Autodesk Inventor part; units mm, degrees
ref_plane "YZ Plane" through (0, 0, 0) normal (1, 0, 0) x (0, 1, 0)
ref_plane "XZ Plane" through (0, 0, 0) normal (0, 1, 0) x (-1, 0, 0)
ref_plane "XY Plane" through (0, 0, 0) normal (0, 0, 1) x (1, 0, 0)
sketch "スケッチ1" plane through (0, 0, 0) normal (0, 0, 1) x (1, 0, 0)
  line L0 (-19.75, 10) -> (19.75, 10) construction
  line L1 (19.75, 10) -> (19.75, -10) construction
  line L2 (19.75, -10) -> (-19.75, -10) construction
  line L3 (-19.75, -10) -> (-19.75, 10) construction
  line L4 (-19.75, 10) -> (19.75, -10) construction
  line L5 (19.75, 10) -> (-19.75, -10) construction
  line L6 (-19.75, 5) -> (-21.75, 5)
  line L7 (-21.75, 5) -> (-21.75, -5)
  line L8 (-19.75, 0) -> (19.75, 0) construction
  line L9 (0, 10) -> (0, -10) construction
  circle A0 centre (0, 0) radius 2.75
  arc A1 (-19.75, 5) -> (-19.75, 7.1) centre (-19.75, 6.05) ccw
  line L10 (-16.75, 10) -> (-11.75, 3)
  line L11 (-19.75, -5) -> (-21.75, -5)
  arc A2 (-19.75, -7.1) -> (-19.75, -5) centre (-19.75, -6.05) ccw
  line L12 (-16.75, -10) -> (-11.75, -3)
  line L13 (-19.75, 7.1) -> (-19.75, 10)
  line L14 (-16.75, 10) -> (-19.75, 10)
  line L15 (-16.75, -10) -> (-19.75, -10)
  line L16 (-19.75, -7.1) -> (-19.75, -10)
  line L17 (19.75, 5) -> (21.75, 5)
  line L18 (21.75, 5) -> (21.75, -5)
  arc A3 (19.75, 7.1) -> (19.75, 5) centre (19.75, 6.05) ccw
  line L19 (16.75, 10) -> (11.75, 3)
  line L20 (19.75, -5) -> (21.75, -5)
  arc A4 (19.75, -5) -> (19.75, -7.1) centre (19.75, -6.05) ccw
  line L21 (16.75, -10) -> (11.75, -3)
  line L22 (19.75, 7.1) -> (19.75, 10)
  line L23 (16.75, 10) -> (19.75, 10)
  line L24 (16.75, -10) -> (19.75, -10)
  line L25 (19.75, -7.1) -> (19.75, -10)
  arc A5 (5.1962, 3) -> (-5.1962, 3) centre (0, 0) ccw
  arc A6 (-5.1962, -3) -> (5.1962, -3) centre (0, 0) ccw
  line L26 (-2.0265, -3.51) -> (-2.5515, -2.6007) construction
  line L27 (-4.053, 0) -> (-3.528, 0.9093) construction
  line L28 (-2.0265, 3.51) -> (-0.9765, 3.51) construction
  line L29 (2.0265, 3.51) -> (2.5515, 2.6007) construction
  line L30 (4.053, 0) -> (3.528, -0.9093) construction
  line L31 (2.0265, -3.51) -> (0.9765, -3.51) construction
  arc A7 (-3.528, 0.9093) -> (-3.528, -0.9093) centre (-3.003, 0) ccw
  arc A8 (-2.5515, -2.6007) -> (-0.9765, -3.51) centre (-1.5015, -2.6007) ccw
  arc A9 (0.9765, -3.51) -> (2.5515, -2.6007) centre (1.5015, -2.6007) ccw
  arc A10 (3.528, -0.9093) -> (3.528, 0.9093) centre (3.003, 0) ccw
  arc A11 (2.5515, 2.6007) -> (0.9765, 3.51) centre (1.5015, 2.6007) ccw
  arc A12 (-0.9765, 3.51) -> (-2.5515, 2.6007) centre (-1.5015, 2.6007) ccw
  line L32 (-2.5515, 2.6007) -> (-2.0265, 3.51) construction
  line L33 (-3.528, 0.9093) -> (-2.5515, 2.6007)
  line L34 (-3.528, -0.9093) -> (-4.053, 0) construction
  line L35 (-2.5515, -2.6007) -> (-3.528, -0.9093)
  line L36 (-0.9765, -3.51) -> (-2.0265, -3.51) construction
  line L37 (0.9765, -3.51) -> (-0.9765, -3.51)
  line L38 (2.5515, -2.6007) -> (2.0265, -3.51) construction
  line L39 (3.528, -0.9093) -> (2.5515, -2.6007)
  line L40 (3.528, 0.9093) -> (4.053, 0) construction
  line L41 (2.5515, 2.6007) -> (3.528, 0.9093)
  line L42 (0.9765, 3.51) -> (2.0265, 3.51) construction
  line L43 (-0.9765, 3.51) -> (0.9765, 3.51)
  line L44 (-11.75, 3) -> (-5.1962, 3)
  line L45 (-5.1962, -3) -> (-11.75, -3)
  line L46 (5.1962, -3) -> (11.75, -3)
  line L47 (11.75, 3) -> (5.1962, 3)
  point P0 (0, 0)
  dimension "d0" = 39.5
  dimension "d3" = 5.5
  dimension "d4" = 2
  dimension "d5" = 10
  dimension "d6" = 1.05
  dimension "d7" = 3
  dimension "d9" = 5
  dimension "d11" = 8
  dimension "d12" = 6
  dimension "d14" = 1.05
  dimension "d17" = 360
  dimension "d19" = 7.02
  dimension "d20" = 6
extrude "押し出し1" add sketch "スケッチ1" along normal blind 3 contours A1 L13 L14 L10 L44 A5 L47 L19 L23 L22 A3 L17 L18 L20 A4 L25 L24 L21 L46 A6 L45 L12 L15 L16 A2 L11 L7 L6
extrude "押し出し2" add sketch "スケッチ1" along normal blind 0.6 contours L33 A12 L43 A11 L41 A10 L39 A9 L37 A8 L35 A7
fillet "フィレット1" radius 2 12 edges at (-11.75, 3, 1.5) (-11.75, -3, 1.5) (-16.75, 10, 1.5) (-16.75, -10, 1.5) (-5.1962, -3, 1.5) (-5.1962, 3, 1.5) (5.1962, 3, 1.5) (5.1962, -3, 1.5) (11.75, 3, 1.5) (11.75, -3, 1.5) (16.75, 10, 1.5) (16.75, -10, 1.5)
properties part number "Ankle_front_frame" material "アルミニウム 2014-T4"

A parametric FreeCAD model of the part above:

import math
import FreeCAD as App
import Part
import Sketcher
Q = App.Units.Quantity


def edges_at(feature, points):
    """Names of the edges that pass closest to the given points."""
    edges = feature.Shape.Edges
    near = lambda p: min(range(len(edges)), key=lambda i: edges[i].distToShape(Part.Vertex(*p))[0])
    return sorted({f"Edge{near(p) + 1}" for p in points})

doc = App.newDocument("Part")
body = doc.addObject("PartDesign::Body", "Body")

sketch1 = body.newObject("Sketcher::SketchObject", "Sketch")
sketch1.AttachmentSupport = (doc.getObject("XY_Plane"), [""])
sketch1.MapMode = "FlatFace"
sketch1.addGeometry([
    Part.ArcOfCircle(Part.Circle(App.Vector(-19.8, 6, 0), App.Vector(0, 0, 1), 1), math.radians(-90), math.radians(90)),
    Part.LineSegment(App.Vector(-19.8, 5, 0), App.Vector(-21.8, 5, 0)),
    Part.LineSegment(App.Vector(-21.8, 5, 0), App.Vector(-21.8, -5, 0)),
    Part.LineSegment(App.Vector(-21.8, -5, 0), App.Vector(-19.8, -5, 0)),
    Part.ArcOfCircle(Part.Circle(App.Vector(-19.8, -6, 0), App.Vector(0, 0, 1), 1), math.radians(-90), math.radians(90)),
    Part.LineSegment(App.Vector(-19.8, -7.1, 0), App.Vector(-19.8, -10, 0)),
    Part.LineSegment(App.Vector(-19.8, -10, 0), App.Vector(-16.8, -10, 0)),
    Part.LineSegment(App.Vector(-16.8, -10, 0), App.Vector(-11.8, -3, 0)),
    Part.LineSegment(App.Vector(-11.8, -3, 0), App.Vector(-5.2, -3, 0)),
    Part.ArcOfCircle(Part.Circle(App.Vector(0, 0, 0), App.Vector(0, 0, 1), 6), math.radians(-150), math.radians(-30)),
    Part.LineSegment(App.Vector(5.2, -3, 0), App.Vector(11.8, -3, 0)),
    Part.LineSegment(App.Vector(11.8, -3, 0), App.Vector(16.8, -10, 0)),
    Part.LineSegment(App.Vector(16.8, -10, 0), App.Vector(19.8, -10, 0)),
    Part.LineSegment(App.Vector(19.8, -10, 0), App.Vector(19.8, -7.1, 0)),
    Part.ArcOfCircle(Part.Circle(App.Vector(19.8, -6, 0), App.Vector(0, 0, 1), 1), math.radians(90), math.radians(270)),
    Part.LineSegment(App.Vector(19.8, -5, 0), App.Vector(21.8, -5, 0)),
    Part.LineSegment(App.Vector(21.8, -5, 0), App.Vector(21.8, 5, 0)),
    Part.LineSegment(App.Vector(21.8, 5, 0), App.Vector(19.8, 5, 0)),
    Part.ArcOfCircle(Part.Circle(App.Vector(19.8, 6, 0), App.Vector(0, 0, 1), 1), math.radians(90), math.radians(270)),
    Part.LineSegment(App.Vector(19.8, 7.1, 0), App.Vector(19.8, 10, 0)),
    Part.LineSegment(App.Vector(19.8, 10, 0), App.Vector(16.8, 10, 0)),
    Part.LineSegment(App.Vector(16.8, 10, 0), App.Vector(11.8, 3, 0)),
    Part.LineSegment(App.Vector(11.8, 3, 0), App.Vector(5.2, 3, 0)),
    Part.ArcOfCircle(Part.Circle(App.Vector(0, 0, 0), App.Vector(0, 0, 1), 6), math.radians(30), math.radians(150)),
    Part.LineSegment(App.Vector(-5.2, 3, 0), App.Vector(-11.8, 3, 0)),
    Part.LineSegment(App.Vector(-11.8, 3, 0), App.Vector(-16.8, 10, 0)),
    Part.LineSegment(App.Vector(-16.8, 10, 0), App.Vector(-19.8, 10, 0)),
    Part.LineSegment(App.Vector(-19.8, 10, 0), App.Vector(-19.8, 7.1, 0)),
    Part.ArcOfCircle(Part.Circle(App.Vector(-3, 0, 0), App.Vector(0, 0, 1), 1), math.radians(120), math.radians(240)),
    Part.LineSegment(App.Vector(-3.5, 0.9, 0), App.Vector(-2.6, 2.6, 0)),
    Part.ArcOfCircle(Part.Circle(App.Vector(-1.5, 2.6, 0), App.Vector(0, 0, 1), 1), math.radians(60), math.radians(180)),
    Part.LineSegment(App.Vector(-1, 3.5, 0), App.Vector(1, 3.5, 0)),
    Part.ArcOfCircle(Part.Circle(App.Vector(1.5, 2.6, 0), App.Vector(0, 0, 1), 1), math.radians(0), math.radians(120)),
    Part.LineSegment(App.Vector(2.6, 2.6, 0), App.Vector(3.5, 0.9, 0)),
    Part.ArcOfCircle(Part.Circle(App.Vector(3, 0, 0), App.Vector(0, 0, 1), 1), math.radians(-60), math.radians(60)),
    Part.LineSegment(App.Vector(3.5, -0.9, 0), App.Vector(2.6, -2.6, 0)),
    Part.ArcOfCircle(Part.Circle(App.Vector(1.5, -2.6, 0), App.Vector(0, 0, 1), 1), math.radians(-120), math.radians(0)),
    Part.LineSegment(App.Vector(1, -3.5, 0), App.Vector(-1, -3.5, 0)),
    Part.ArcOfCircle(Part.Circle(App.Vector(-1.5, -2.6, 0), App.Vector(0, 0, 1), 1), math.radians(180), math.radians(300)),
    Part.LineSegment(App.Vector(-2.6, -2.6, 0), App.Vector(-3.5, -0.9, 0)),
], False)
sketch1.addConstraint([
    Sketcher.Constraint("Tangent", 0, 1, 1, 1),
    Sketcher.Constraint("Coincident", 1, 2, 2, 1),
    Sketcher.Constraint("Coincident", 2, 2, 3, 1),
    Sketcher.Constraint("Tangent", 3, 2, 4, 2),
    Sketcher.Constraint("Coincident", 4, 1, 5, 1),
    Sketcher.Constraint("Coincident", 5, 2, 6, 1),
    Sketcher.Constraint("Coincident", 6, 2, 7, 1),
    Sketcher.Constraint("Coincident", 7, 2, 8, 1),
    Sketcher.Constraint("Coincident", 8, 2, 9, 1),
    Sketcher.Constraint("Coincident", 9, 2, 10, 1),
    Sketcher.Constraint("Coincident", 10, 2, 11, 1),
    Sketcher.Constraint("Coincident", 11, 2, 12, 1),
    Sketcher.Constraint("Coincident", 12, 2, 13, 1),
    Sketcher.Constraint("Coincident", 13, 2, 14, 2),
    Sketcher.Constraint("Tangent", 14, 1, 15, 1),
    Sketcher.Constraint("Coincident", 15, 2, 16, 1),
    Sketcher.Constraint("Coincident", 16, 2, 17, 1),
    Sketcher.Constraint("Tangent", 17, 2, 18, 2),
    Sketcher.Constraint("Coincident", 18, 1, 19, 1),
    Sketcher.Constraint("Coincident", 19, 2, 20, 1),
    Sketcher.Constraint("Coincident", 20, 2, 21, 1),
    Sketcher.Constraint("Coincident", 21, 2, 22, 1),
    Sketcher.Constraint("Coincident", 22, 2, 23, 1),
    Sketcher.Constraint("Coincident", 23, 2, 24, 1),
    Sketcher.Constraint("Coincident", 24, 2, 25, 1),
    Sketcher.Constraint("Coincident", 25, 2, 26, 1),
    Sketcher.Constraint("Coincident", 26, 2, 27, 1),
    Sketcher.Constraint("Coincident", 27, 2, 0, 2),
    Sketcher.Constraint("Coincident", 28, 1, 29, 1),
    Sketcher.Constraint("Coincident", 29, 2, 30, 2),
    Sketcher.Constraint("Coincident", 30, 1, 31, 1),
    Sketcher.Constraint("Coincident", 31, 2, 32, 2),
    Sketcher.Constraint("Coincident", 32, 1, 33, 1),
    Sketcher.Constraint("Coincident", 33, 2, 34, 2),
    Sketcher.Constraint("Coincident", 34, 1, 35, 1),
    Sketcher.Constraint("Coincident", 35, 2, 36, 2),
    Sketcher.Constraint("Coincident", 36, 1, 37, 1),
    Sketcher.Constraint("Coincident", 37, 2, 38, 2),
    Sketcher.Constraint("Coincident", 38, 1, 39, 1),
    Sketcher.Constraint("Coincident", 39, 2, 28, 2),
    Sketcher.Constraint("Horizontal", 1),
    Sketcher.Constraint("Vertical", 2),
    Sketcher.Constraint("Horizontal", 3),
    Sketcher.Constraint("Vertical", 5),
    Sketcher.Constraint("Horizontal", 6),
    Sketcher.Constraint("Horizontal", 8),
    Sketcher.Constraint("Horizontal", 10),
    Sketcher.Constraint("Horizontal", 12),
    Sketcher.Constraint("Vertical", 13),
    Sketcher.Constraint("Horizontal", 15),
    Sketcher.Constraint("Vertical", 16),
    Sketcher.Constraint("Horizontal", 17),
    Sketcher.Constraint("Vertical", 19),
    Sketcher.Constraint("Horizontal", 20),
    Sketcher.Constraint("Horizontal", 22),
    Sketcher.Constraint("Horizontal", 24),
    Sketcher.Constraint("Horizontal", 26),
    Sketcher.Constraint("Vertical", 27),
    Sketcher.Constraint("Horizontal", 31),
    Sketcher.Constraint("Horizontal", 37),
    Sketcher.Constraint("Coincident", 9, 3, -1, 1),
    Sketcher.Constraint("Coincident", 23, 3, -1, 1),
    Sketcher.Constraint("Equal", 0, 4),
    Sketcher.Constraint("Equal", 4, 14),
    Sketcher.Constraint("Equal", 14, 18),
    Sketcher.Constraint("Equal", 9, 23),
    Sketcher.Constraint("Equal", 18, 28),
    Sketcher.Constraint("Equal", 28, 30),
    Sketcher.Constraint("Equal", 30, 32),
    Sketcher.Constraint("Equal", 32, 34),
    Sketcher.Constraint("Equal", 34, 36),
    Sketcher.Constraint("Equal", 36, 38),
    Sketcher.Constraint("Symmetric", 0, 3, 14, 3, -1, 1),
    Sketcher.Constraint("Symmetric", 4, 3, 18, 3, -1, 1),
    Sketcher.Constraint("Symmetric", 28, 3, 34, 3, -1, 1),
    Sketcher.Constraint("Symmetric", 30, 3, 36, 3, -1, 1),
    Sketcher.Constraint("Symmetric", 32, 3, 38, 3, -1, 1),
    Sketcher.Constraint("Symmetric", 5, 2, 19, 2, -1, 1),
    Sketcher.Constraint("Symmetric", 7, 2, 21, 2, -1, 1),
    Sketcher.Constraint("Symmetric", 10, 2, 24, 2, -1, 1),
    Sketcher.Constraint("Symmetric", 11, 2, 25, 2, -1, 1),
    Sketcher.Constraint("Symmetric", 4, 3, 14, 3, -2),
    Sketcher.Constraint("Symmetric", 30, 3, 32, 3, -2),
    Sketcher.Constraint("Symmetric", 7, 2, 10, 2, -2),
    Sketcher.Constraint("Symmetric", 6, 2, 11, 2, -2),
    Sketcher.Constraint("Symmetric", 28, 1, 33, 2, -2),
    Sketcher.Constraint("Parallel", 7, 21),
    Sketcher.Constraint("Parallel", 29, 35),
    Sketcher.Constraint("Parallel", 33, 39),
    Sketcher.Constraint("Horizontal", 32, 3, 29, 2),
    Sketcher.Constraint("Horizontal", 29, 2, 32, 1),
    Sketcher.Constraint("Horizontal", 38, 3, 35, 2),
    Sketcher.Constraint("Horizontal", 35, 2, 38, 1),
    Sketcher.Constraint("Vertical", 3, 2, 4, 1),
    Sketcher.Constraint("Vertical", 18, 3, 12, 2),
    Sketcher.Constraint("Vertical", 5, 2, 26, 2),
    Sketcher.Constraint("Vertical", 31, 2, 36, 1),
    Sketcher.Constraint("Equal", 3, 15),
    Sketcher.Constraint("Radius", 9, 6.0),
    Sketcher.Constraint("DistanceX", 1, 2, 1, 1, 2.0),
    Sketcher.Constraint("DistanceX", 6, 1, 6, 2, 3.0),
    Sketcher.Constraint("DistanceY", 2, 2, 2, 1, 10.0),
    Sketcher.Constraint("Radius", 0, 1.05),
    Sketcher.Constraint("DistanceY", 5, 2, -1, 1, 10.0),
    Sketcher.Constraint("DistanceY", 7, 2, -1, 1, 3.0),
    Sketcher.Constraint("DistanceX", 3, 2, 7, 2, 8.0),
    Sketcher.Constraint("DistanceX", 4, 3, 14, 3, 39.5),
    Sketcher.Constraint("Angle", 29, Q("60.0008 deg")),
    Sketcher.Constraint("DistanceX", 31, 1, 31, 2, 1.953),
    Sketcher.Constraint("DistanceY", -1, 1, 30, 1, 3.51),
    Sketcher.Constraint("DistanceY", 35, 2, 33, 2, 3.51),
    Sketcher.Constraint("Distance", 29, 1.953),
])
pad1 = body.newObject("PartDesign::Pad", "Pad")
pad1.Profile = sketch1
pad1.Length = 3

sketch2 = body.newObject("Sketcher::SketchObject", "Sketch001")
sketch2.AttachmentSupport = (doc.getObject("XY_Plane"), [""])
sketch2.MapMode = "FlatFace"
sketch2.addGeometry([
    Part.LineSegment(App.Vector(-2.6, 2.6, 0), App.Vector(-3.5, 0.9, 0)),
    Part.ArcOfCircle(Part.Circle(App.Vector(-3, 0, 0), App.Vector(0, 0, 1), 1), math.radians(120), math.radians(240)),
    Part.LineSegment(App.Vector(-3.5, -0.9, 0), App.Vector(-2.6, -2.6, 0)),
    Part.ArcOfCircle(Part.Circle(App.Vector(-1.5, -2.6, 0), App.Vector(0, 0, 1), 1), math.radians(180), math.radians(300)),
    Part.LineSegment(App.Vector(-1, -3.5, 0), App.Vector(1, -3.5, 0)),
    Part.ArcOfCircle(Part.Circle(App.Vector(1.5, -2.6, 0), App.Vector(0, 0, 1), 1), math.radians(-120), math.radians(0)),
    Part.LineSegment(App.Vector(2.6, -2.6, 0), App.Vector(3.5, -0.9, 0)),
    Part.ArcOfCircle(Part.Circle(App.Vector(3, 0, 0), App.Vector(0, 0, 1), 1), math.radians(-60), math.radians(60)),
    Part.LineSegment(App.Vector(3.5, 0.9, 0), App.Vector(2.6, 2.6, 0)),
    Part.ArcOfCircle(Part.Circle(App.Vector(1.5, 2.6, 0), App.Vector(0, 0, 1), 1), math.radians(0), math.radians(120)),
    Part.LineSegment(App.Vector(1, 3.5, 0), App.Vector(-1, 3.5, 0)),
    Part.ArcOfCircle(Part.Circle(App.Vector(-1.5, 2.6, 0), App.Vector(0, 0, 1), 1), math.radians(60), math.radians(180)),
    Part.Circle(App.Vector(0, 0, 0), App.Vector(0, 0, 1), 2.8),
], False)
sketch2.addConstraint([
    Sketcher.Constraint("Coincident", 0, 2, 1, 1),
    Sketcher.Constraint("Coincident", 1, 2, 2, 1),
    Sketcher.Constraint("Coincident", 2, 2, 3, 1),
    Sketcher.Constraint("Coincident", 3, 2, 4, 1),
    Sketcher.Constraint("Coincident", 4, 2, 5, 1),
    Sketcher.Constraint("Coincident", 5, 2, 6, 1),
    Sketcher.Constraint("Coincident", 6, 2, 7, 1),
    Sketcher.Constraint("Coincident", 7, 2, 8, 1),
    Sketcher.Constraint("Coincident", 8, 2, 9, 1),
    Sketcher.Constraint("Coincident", 9, 2, 10, 1),
    Sketcher.Constraint("Coincident", 10, 2, 11, 1),
    Sketcher.Constraint("Coincident", 11, 2, 0, 1),
    Sketcher.Constraint("Horizontal", 4),
    Sketcher.Constraint("Horizontal", 10),
    Sketcher.Constraint("Coincident", 12, 3, -1, 1),
    Sketcher.Constraint("Equal", 1, 3),
    Sketcher.Constraint("Equal", 3, 5),
    Sketcher.Constraint("Equal", 5, 7),
    Sketcher.Constraint("Equal", 7, 9),
    Sketcher.Constraint("Equal", 9, 11),
    Sketcher.Constraint("Symmetric", 1, 3, 7, 3, -1, 1),
    Sketcher.Constraint("Symmetric", 3, 3, 9, 3, -1, 1),
    Sketcher.Constraint("Symmetric", 5, 3, 11, 3, -1, 1),
    Sketcher.Constraint("Symmetric", 3, 3, 5, 3, -2),
    Sketcher.Constraint("Symmetric", 1, 2, 6, 2, -2),
    Sketcher.Constraint("Parallel", 0, 6),
    Sketcher.Constraint("Parallel", 2, 8),
    Sketcher.Constraint("Horizontal", 5, 3, 2, 2),
    Sketcher.Constraint("Horizontal", 2, 2, 5, 2),
    Sketcher.Constraint("Horizontal", 0, 2, 7, 2),
    Sketcher.Constraint("Horizontal", 11, 3, 8, 2),
    Sketcher.Constraint("Vertical", 4, 2, 9, 2),
    Sketcher.Constraint("Diameter", 12, 5.5),
    Sketcher.Constraint("Radius", 1, 1.05),
    Sketcher.Constraint("Angle", 0, Q("-119.9992 deg")),
    Sketcher.Constraint("DistanceX", 4, 1, 4, 2, 1.953),
    Sketcher.Constraint("DistanceY", 3, 2, -1, 1, 3.51),
    Sketcher.Constraint("DistanceY", 3, 3, 0, 2, 3.51),
    Sketcher.Constraint("Distance", 0, 1.953),
])
pad2 = body.newObject("PartDesign::Pad", "Pad001")
pad2.Profile = sketch2
pad2.Length = 0.6
doc.recompute()

fillet = body.newObject("PartDesign::Fillet", "Fillet")
fillet.Base = (pad2, edges_at(pad2, [
    (-11.75, 3, 1.5),
    (-11.75, -3, 1.5),
    (-16.75, 10, 1.5),
    (-16.75, -10, 1.5),
    (-5.196, -3, 1.5),
    (-5.196, 3, 1.5),
    (5.196, 3, 1.5),
    (5.196, -3, 1.5),
    (11.75, 3, 1.5),
    (11.75, -3, 1.5),
    (16.75, 10, 1.5),
    (16.75, -10, 1.5),
]))
fillet.Radius = 2

doc.recompute()
